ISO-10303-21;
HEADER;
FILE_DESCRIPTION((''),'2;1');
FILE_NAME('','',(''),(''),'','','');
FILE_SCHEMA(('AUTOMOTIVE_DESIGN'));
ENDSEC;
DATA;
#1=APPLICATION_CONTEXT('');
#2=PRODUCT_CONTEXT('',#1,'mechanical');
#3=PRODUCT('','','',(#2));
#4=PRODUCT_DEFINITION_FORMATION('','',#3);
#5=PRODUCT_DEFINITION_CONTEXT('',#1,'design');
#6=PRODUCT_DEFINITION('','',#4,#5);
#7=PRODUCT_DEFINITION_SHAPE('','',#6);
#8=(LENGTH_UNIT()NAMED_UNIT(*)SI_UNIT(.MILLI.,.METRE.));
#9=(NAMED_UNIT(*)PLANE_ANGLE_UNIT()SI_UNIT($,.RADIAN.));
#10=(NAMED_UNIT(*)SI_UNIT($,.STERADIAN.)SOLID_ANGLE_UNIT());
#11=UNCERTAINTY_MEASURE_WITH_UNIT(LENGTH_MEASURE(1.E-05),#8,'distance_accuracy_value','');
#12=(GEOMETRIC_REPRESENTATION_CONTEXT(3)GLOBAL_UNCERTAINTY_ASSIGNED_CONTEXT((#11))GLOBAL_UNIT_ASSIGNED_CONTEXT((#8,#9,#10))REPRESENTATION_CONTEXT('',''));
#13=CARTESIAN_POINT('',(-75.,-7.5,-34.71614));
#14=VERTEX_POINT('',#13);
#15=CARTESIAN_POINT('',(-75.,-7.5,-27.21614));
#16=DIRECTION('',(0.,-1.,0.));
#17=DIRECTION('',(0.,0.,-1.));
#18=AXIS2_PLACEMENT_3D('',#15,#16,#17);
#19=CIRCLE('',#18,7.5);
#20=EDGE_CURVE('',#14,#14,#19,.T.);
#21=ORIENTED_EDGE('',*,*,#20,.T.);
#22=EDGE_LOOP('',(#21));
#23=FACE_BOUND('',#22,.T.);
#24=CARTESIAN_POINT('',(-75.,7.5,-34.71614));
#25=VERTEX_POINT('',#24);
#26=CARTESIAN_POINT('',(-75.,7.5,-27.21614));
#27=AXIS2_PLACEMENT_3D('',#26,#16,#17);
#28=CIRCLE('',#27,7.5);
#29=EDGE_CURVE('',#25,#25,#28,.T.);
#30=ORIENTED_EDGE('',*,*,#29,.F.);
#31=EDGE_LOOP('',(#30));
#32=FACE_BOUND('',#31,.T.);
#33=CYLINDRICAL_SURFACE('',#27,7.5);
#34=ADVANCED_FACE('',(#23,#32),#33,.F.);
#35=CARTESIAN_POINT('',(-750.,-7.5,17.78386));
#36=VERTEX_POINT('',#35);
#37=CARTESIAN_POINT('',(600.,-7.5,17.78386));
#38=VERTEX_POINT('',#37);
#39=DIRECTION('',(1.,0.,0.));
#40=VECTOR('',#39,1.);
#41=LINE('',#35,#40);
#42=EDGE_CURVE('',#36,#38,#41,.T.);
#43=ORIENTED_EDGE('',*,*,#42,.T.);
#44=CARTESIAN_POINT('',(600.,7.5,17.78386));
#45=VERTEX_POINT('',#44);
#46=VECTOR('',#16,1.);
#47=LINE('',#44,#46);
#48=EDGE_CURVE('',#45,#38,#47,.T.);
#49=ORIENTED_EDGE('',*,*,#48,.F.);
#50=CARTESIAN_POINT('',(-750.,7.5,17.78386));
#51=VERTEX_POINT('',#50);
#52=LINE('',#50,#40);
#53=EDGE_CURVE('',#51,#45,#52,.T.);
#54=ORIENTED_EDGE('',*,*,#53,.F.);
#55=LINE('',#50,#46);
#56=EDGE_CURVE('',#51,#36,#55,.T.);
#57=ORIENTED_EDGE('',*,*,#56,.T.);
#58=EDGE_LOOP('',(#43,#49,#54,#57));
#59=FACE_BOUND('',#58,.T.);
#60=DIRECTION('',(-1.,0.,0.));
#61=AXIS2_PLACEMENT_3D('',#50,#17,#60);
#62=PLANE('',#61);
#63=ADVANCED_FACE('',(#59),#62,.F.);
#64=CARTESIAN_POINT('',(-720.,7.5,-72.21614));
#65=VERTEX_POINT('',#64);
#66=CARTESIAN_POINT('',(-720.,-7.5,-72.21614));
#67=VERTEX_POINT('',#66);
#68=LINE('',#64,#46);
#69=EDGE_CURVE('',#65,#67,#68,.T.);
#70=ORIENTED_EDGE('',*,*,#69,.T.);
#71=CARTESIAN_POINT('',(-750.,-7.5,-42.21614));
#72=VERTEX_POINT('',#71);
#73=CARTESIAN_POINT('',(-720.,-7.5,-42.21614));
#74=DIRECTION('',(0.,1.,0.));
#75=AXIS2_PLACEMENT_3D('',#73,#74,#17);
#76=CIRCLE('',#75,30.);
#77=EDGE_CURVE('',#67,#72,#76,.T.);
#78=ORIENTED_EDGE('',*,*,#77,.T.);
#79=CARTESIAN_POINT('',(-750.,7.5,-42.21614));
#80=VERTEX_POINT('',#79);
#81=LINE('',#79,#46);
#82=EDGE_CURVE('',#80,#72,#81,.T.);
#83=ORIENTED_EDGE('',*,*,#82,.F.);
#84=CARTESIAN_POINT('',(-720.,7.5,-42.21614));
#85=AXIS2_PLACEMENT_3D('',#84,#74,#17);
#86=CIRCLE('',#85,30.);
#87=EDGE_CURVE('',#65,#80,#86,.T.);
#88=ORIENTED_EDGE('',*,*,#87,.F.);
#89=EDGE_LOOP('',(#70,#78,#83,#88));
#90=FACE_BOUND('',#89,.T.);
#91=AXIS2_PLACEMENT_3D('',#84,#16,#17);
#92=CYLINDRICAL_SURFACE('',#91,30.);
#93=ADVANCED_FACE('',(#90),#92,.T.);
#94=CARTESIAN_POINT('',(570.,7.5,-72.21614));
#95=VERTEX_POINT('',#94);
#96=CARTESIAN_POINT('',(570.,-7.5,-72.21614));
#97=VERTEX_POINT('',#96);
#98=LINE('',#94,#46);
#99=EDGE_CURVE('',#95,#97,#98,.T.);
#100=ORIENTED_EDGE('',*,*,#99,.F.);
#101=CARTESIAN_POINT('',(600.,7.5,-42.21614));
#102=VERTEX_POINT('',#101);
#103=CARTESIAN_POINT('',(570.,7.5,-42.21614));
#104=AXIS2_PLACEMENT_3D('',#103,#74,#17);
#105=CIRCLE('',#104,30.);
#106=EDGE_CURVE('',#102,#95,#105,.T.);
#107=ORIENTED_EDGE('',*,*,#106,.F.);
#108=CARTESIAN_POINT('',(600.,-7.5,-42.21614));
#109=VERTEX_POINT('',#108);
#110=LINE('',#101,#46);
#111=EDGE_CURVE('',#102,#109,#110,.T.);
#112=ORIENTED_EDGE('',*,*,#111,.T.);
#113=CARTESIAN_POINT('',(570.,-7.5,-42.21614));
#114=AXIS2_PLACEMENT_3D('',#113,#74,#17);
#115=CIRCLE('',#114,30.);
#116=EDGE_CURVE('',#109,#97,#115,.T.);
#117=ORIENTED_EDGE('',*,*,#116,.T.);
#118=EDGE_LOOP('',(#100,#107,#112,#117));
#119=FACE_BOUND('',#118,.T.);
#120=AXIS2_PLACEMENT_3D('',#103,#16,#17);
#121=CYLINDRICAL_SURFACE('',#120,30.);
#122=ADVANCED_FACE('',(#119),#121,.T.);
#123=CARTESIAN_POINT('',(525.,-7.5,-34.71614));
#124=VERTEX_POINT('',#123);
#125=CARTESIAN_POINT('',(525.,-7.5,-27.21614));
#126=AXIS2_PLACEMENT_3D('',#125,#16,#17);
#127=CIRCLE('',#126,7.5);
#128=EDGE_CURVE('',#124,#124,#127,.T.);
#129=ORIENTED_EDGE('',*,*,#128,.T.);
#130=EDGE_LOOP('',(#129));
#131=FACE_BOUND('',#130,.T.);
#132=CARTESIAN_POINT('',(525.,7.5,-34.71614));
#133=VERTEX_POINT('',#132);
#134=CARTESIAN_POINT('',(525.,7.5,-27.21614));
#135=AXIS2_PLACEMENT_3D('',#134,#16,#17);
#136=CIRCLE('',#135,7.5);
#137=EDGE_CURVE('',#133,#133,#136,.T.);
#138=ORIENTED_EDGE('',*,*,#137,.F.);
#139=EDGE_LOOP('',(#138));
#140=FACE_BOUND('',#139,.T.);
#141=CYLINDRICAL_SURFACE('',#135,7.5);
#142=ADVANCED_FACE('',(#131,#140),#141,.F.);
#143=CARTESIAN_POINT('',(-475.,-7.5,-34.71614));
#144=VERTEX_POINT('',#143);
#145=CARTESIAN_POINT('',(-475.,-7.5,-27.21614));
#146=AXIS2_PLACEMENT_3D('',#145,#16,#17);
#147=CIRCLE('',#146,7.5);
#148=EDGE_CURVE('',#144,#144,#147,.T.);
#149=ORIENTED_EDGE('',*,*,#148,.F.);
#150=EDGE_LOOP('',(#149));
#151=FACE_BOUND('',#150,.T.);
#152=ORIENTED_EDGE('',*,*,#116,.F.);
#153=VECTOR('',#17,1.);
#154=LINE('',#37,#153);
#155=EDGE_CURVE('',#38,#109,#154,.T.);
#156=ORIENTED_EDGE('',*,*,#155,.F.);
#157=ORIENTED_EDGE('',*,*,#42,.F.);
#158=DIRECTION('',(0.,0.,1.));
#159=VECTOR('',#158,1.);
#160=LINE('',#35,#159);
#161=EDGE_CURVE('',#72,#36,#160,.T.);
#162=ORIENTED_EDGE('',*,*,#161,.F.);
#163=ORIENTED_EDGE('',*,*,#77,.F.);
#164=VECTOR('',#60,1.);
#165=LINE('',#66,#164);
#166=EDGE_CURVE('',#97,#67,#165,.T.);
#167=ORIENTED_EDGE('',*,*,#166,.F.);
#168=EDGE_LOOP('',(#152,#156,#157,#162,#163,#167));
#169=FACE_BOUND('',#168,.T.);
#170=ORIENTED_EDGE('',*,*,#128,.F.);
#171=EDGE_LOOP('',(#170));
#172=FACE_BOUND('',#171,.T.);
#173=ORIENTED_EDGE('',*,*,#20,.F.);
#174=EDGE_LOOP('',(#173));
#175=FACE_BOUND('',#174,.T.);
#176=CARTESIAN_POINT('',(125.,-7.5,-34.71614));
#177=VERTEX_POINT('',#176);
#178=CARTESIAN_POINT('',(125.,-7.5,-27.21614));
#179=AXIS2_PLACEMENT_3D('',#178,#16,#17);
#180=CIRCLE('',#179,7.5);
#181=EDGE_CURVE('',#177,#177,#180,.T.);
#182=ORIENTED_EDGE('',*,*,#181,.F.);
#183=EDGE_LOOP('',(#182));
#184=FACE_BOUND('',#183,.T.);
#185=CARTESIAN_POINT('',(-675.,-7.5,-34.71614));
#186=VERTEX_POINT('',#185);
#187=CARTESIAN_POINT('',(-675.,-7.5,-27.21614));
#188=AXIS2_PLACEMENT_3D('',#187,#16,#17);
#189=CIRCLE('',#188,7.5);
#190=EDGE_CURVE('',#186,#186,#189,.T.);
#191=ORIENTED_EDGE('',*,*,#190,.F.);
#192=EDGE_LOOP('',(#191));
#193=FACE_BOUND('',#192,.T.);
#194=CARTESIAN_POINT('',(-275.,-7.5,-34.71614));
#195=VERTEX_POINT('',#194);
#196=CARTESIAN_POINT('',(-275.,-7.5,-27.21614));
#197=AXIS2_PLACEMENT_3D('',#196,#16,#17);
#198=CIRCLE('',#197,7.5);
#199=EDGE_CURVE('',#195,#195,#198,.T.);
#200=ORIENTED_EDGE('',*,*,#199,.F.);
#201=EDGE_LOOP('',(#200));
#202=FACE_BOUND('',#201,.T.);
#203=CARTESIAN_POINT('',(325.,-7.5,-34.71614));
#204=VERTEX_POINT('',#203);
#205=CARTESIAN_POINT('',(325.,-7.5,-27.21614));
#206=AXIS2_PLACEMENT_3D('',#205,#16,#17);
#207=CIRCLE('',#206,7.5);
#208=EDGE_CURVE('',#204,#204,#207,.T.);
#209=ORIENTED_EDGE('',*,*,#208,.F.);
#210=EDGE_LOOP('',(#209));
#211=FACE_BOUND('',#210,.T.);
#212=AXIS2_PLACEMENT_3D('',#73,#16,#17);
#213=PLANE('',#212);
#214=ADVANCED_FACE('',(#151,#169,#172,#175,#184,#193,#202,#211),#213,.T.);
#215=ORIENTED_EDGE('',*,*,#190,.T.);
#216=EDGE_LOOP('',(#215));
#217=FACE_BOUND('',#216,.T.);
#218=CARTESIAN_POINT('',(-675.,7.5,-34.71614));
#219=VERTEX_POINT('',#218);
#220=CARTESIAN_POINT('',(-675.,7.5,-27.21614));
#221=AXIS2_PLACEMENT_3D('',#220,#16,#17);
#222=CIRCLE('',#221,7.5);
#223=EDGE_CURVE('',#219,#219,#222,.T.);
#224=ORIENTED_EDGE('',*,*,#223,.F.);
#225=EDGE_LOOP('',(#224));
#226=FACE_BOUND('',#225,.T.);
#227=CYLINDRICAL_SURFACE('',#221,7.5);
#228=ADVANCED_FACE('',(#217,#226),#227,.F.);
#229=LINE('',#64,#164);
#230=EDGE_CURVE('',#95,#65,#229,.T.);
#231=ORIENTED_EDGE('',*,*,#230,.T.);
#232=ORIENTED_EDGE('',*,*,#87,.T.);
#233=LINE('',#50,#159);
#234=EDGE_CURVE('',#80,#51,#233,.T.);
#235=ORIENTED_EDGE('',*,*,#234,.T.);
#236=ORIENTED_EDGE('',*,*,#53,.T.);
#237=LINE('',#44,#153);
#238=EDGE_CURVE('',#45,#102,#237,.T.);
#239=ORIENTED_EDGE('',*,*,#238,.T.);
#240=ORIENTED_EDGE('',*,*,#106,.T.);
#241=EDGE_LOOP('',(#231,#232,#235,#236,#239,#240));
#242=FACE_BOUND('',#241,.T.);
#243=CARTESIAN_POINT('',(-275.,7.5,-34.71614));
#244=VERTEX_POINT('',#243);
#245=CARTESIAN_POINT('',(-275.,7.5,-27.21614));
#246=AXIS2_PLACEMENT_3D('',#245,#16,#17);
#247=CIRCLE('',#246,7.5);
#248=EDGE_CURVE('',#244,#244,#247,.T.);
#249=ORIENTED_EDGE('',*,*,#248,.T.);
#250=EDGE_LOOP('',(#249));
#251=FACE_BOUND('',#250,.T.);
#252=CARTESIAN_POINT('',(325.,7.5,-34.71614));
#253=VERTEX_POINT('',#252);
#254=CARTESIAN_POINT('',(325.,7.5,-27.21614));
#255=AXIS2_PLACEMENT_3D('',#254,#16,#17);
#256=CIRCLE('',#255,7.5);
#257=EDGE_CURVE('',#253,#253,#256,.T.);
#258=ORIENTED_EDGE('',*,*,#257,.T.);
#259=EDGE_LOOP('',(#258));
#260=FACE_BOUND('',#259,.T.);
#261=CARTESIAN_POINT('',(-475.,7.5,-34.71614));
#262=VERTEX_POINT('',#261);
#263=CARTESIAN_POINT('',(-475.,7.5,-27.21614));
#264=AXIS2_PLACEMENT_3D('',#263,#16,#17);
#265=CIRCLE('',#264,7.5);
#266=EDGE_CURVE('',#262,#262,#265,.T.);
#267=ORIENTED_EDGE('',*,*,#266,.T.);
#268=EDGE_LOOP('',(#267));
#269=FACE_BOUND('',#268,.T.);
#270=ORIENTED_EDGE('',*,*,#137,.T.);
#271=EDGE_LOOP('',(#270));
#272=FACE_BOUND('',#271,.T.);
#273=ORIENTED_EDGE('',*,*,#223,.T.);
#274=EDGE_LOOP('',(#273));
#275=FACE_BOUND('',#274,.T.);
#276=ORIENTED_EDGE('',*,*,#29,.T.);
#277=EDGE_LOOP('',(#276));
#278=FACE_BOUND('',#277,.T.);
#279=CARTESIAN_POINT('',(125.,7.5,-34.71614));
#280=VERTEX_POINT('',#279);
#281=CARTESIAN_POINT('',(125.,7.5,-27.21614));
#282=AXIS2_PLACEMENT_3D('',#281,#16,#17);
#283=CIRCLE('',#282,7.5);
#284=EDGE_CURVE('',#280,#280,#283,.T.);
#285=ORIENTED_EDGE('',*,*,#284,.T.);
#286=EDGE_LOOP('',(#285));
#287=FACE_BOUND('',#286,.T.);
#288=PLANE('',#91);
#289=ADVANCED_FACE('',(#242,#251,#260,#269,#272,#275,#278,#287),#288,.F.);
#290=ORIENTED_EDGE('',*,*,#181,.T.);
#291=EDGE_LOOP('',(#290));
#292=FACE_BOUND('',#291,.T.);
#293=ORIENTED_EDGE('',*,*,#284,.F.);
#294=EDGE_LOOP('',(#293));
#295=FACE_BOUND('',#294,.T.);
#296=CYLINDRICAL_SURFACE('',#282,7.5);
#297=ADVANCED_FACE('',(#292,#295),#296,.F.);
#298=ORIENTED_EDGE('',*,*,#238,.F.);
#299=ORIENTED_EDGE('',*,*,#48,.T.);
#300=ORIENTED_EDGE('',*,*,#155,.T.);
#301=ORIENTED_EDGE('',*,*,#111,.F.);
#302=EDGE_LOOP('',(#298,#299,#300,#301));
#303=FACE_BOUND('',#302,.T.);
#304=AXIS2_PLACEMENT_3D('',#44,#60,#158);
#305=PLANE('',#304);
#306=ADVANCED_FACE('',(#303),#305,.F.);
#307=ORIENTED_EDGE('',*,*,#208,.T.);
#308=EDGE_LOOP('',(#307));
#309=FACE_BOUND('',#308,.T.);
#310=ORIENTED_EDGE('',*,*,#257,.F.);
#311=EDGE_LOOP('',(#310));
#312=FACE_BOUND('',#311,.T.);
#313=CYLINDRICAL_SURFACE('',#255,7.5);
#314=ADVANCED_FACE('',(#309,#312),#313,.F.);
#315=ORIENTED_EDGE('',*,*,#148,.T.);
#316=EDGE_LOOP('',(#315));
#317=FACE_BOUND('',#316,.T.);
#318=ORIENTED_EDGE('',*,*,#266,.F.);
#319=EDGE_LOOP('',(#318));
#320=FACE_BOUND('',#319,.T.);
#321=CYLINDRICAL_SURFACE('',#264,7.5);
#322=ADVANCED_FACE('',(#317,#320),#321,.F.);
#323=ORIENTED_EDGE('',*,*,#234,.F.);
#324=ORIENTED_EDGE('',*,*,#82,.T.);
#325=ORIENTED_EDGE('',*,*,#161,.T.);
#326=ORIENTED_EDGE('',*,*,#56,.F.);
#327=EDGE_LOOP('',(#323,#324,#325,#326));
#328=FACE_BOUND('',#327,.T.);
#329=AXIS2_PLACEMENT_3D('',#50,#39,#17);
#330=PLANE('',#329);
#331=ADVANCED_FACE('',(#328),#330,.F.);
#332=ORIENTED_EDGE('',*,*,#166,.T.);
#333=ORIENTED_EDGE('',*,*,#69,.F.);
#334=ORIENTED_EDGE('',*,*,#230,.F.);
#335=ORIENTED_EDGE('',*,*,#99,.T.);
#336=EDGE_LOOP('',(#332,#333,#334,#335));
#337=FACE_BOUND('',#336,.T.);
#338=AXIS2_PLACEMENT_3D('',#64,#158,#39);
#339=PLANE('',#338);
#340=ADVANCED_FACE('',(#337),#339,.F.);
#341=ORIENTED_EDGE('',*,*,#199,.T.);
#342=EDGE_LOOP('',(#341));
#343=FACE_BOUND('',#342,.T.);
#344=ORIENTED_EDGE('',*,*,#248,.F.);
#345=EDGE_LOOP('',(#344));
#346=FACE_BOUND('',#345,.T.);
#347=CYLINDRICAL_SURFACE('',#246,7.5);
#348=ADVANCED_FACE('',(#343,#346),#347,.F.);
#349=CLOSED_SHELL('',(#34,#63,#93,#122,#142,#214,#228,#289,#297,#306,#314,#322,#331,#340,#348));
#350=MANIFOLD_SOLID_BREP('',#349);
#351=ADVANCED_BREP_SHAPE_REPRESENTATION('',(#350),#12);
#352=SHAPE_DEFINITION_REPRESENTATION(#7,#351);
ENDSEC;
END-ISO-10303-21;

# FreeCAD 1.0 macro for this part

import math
import FreeCAD as App
import Part
import Sketcher
from FreeCAD import Vector

doc = App.newDocument("Part")
params = doc.addObject("Spreadsheet::Sheet", "Params")
for row, (alias, value) in enumerate([
    ("sketch1_radius", "30 mm"),
    ("sketch1_width", "1350 mm"),
    ("sketch1_height", "60 mm"),
    ("pad1_length", "15 mm"),
    ("sketch2_diameter", "15 mm"),
], start=1):
    params.set(f"A{row}", alias)
    params.set(f"B{row}", "=" + value)
    params.setAlias(f"B{row}", alias)

body = doc.addObject("PartDesign::Body", "Body")

# Sketch on XZ plane
sketch1 = body.newObject("Sketcher::SketchObject", "Sketch")
sketch1.AttachmentSupport = (doc.getObject("XZ_Plane"), [""])
sketch1.MapMode = "FlatFace"
sketch1.addGeometry([
    Part.LineSegment(Vector(-750, 18, 0), Vector(600, 18, 0)),  # 0
    Part.LineSegment(Vector(600, 18, 0), Vector(600, -42, 0)),  # 1
    Part.ArcOfCircle(Part.Circle(Vector(570, -42, 0), Vector(0, 0, 1), 30), math.radians(-90), math.radians(0)),  # 2
    Part.LineSegment(Vector(570, -72, 0), Vector(-720, -72, 0)),  # 3
    Part.ArcOfCircle(Part.Circle(Vector(-720, -42, 0), Vector(0, 0, 1), 30), math.radians(180), math.radians(270)),  # 4
    Part.LineSegment(Vector(-750, -42, 0), Vector(-750, 18, 0)),  # 5
], False)
sketch1.addConstraint([
    Sketcher.Constraint("Coincident", 0, 2, 1, 1),
    Sketcher.Constraint("Tangent", 1, 2, 2, 2),
    Sketcher.Constraint("Tangent", 2, 1, 3, 1),
    Sketcher.Constraint("Tangent", 3, 2, 4, 2),
    Sketcher.Constraint("Tangent", 4, 1, 5, 1),
    Sketcher.Constraint("Coincident", 5, 2, 0, 1),
    Sketcher.Constraint("Horizontal", 0),
    Sketcher.Constraint("Vertical", 1),
    Sketcher.Constraint("Horizontal", 3),
    Sketcher.Constraint("Vertical", 5),
    Sketcher.Constraint("Equal", 2, 4),
    Sketcher.Constraint("Radius", 2, 30.0),
    Sketcher.Constraint("DistanceX", 0, 1, 0, 2, 1350.0),
    Sketcher.Constraint("DistanceY", 1, 2, 1, 1, 60.0),
    Sketcher.Constraint("DistanceX", -1, 1, 2, 3, 570.0),
    Sketcher.Constraint("DistanceY", 2, 3, -1, 1, 42.21614),
])
sketch1.setExpression("Constraints[11]", "Params.sketch1_radius")
sketch1.setExpression("Constraints[12]", "Params.sketch1_width")
sketch1.setExpression("Constraints[13]", "Params.sketch1_height")
pad1 = body.newObject("PartDesign::Pad", "Pad")
pad1.Profile = sketch1
pad1.setExpression("Length", "Params.pad1_length")
pad1.Midplane = True

# Sketch on XZ plane
sketch2 = body.newObject("Sketcher::SketchObject", "Sketch001")
sketch2.AttachmentSupport = (doc.getObject("XZ_Plane"), [""])
sketch2.MapMode = "FlatFace"
sketch2.AttachmentOffset = App.Placement(Vector(0, 0, 7.5), App.Rotation())
sketch2.addGeometry([
    Part.Circle(Vector(-675, -27, 0), Vector(0, 0, 1), 8),  # 0
    Part.Circle(Vector(-475, -27, 0), Vector(0, 0, 1), 8),  # 1
    Part.Circle(Vector(-275, -27, 0), Vector(0, 0, 1), 8),  # 2
    Part.Circle(Vector(-75, -27, 0), Vector(0, 0, 1), 8),  # 3
    Part.Circle(Vector(125, -27, 0), Vector(0, 0, 1), 8),  # 4
    Part.Circle(Vector(325, -27, 0), Vector(0, 0, 1), 8),  # 5
    Part.Circle(Vector(525, -27, 0), Vector(0, 0, 1), 8),  # 6
], False)
sketch2.addConstraint([
    Sketcher.Constraint("Equal", 0, 1),
    Sketcher.Constraint("Equal", 1, 2),
    Sketcher.Constraint("Equal", 2, 3),
    Sketcher.Constraint("Equal", 3, 4),
    Sketcher.Constraint("Equal", 4, 5),
    Sketcher.Constraint("Equal", 5, 6),
    Sketcher.Constraint("Horizontal", 0, 3, 1, 3),
    Sketcher.Constraint("Horizontal", 1, 3, 2, 3),
    Sketcher.Constraint("Horizontal", 2, 3, 3, 3),
    Sketcher.Constraint("Horizontal", 3, 3, 4, 3),
    Sketcher.Constraint("Horizontal", 4, 3, 5, 3),
    Sketcher.Constraint("Horizontal", 5, 3, 6, 3),
    Sketcher.Constraint("Diameter", 0, 15.0),
    Sketcher.Constraint("DistanceX", 0, 3, -1, 1, 675.0),
    Sketcher.Constraint("DistanceX", 1, 3, -1, 1, 475.0),
    Sketcher.Constraint("DistanceX", 2, 3, -1, 1, 275.0),
    Sketcher.Constraint("DistanceX", 3, 3, -1, 1, 75.0),
    Sketcher.Constraint("DistanceX", -1, 1, 4, 3, 125.0),
    Sketcher.Constraint("DistanceX", -1, 1, 5, 3, 325.0),
    Sketcher.Constraint("DistanceX", -1, 1, 6, 3, 525.0),
    Sketcher.Constraint("DistanceY", 0, 3, -1, 1, 27.21614),
])
sketch2.setExpression("Constraints[12]", "Params.sketch2_diameter")
pocket1 = body.newObject("PartDesign::Pocket", "Pocket")
pocket1.Profile = sketch2
pocket1.Type = "ThroughAll"

doc.recompute()
